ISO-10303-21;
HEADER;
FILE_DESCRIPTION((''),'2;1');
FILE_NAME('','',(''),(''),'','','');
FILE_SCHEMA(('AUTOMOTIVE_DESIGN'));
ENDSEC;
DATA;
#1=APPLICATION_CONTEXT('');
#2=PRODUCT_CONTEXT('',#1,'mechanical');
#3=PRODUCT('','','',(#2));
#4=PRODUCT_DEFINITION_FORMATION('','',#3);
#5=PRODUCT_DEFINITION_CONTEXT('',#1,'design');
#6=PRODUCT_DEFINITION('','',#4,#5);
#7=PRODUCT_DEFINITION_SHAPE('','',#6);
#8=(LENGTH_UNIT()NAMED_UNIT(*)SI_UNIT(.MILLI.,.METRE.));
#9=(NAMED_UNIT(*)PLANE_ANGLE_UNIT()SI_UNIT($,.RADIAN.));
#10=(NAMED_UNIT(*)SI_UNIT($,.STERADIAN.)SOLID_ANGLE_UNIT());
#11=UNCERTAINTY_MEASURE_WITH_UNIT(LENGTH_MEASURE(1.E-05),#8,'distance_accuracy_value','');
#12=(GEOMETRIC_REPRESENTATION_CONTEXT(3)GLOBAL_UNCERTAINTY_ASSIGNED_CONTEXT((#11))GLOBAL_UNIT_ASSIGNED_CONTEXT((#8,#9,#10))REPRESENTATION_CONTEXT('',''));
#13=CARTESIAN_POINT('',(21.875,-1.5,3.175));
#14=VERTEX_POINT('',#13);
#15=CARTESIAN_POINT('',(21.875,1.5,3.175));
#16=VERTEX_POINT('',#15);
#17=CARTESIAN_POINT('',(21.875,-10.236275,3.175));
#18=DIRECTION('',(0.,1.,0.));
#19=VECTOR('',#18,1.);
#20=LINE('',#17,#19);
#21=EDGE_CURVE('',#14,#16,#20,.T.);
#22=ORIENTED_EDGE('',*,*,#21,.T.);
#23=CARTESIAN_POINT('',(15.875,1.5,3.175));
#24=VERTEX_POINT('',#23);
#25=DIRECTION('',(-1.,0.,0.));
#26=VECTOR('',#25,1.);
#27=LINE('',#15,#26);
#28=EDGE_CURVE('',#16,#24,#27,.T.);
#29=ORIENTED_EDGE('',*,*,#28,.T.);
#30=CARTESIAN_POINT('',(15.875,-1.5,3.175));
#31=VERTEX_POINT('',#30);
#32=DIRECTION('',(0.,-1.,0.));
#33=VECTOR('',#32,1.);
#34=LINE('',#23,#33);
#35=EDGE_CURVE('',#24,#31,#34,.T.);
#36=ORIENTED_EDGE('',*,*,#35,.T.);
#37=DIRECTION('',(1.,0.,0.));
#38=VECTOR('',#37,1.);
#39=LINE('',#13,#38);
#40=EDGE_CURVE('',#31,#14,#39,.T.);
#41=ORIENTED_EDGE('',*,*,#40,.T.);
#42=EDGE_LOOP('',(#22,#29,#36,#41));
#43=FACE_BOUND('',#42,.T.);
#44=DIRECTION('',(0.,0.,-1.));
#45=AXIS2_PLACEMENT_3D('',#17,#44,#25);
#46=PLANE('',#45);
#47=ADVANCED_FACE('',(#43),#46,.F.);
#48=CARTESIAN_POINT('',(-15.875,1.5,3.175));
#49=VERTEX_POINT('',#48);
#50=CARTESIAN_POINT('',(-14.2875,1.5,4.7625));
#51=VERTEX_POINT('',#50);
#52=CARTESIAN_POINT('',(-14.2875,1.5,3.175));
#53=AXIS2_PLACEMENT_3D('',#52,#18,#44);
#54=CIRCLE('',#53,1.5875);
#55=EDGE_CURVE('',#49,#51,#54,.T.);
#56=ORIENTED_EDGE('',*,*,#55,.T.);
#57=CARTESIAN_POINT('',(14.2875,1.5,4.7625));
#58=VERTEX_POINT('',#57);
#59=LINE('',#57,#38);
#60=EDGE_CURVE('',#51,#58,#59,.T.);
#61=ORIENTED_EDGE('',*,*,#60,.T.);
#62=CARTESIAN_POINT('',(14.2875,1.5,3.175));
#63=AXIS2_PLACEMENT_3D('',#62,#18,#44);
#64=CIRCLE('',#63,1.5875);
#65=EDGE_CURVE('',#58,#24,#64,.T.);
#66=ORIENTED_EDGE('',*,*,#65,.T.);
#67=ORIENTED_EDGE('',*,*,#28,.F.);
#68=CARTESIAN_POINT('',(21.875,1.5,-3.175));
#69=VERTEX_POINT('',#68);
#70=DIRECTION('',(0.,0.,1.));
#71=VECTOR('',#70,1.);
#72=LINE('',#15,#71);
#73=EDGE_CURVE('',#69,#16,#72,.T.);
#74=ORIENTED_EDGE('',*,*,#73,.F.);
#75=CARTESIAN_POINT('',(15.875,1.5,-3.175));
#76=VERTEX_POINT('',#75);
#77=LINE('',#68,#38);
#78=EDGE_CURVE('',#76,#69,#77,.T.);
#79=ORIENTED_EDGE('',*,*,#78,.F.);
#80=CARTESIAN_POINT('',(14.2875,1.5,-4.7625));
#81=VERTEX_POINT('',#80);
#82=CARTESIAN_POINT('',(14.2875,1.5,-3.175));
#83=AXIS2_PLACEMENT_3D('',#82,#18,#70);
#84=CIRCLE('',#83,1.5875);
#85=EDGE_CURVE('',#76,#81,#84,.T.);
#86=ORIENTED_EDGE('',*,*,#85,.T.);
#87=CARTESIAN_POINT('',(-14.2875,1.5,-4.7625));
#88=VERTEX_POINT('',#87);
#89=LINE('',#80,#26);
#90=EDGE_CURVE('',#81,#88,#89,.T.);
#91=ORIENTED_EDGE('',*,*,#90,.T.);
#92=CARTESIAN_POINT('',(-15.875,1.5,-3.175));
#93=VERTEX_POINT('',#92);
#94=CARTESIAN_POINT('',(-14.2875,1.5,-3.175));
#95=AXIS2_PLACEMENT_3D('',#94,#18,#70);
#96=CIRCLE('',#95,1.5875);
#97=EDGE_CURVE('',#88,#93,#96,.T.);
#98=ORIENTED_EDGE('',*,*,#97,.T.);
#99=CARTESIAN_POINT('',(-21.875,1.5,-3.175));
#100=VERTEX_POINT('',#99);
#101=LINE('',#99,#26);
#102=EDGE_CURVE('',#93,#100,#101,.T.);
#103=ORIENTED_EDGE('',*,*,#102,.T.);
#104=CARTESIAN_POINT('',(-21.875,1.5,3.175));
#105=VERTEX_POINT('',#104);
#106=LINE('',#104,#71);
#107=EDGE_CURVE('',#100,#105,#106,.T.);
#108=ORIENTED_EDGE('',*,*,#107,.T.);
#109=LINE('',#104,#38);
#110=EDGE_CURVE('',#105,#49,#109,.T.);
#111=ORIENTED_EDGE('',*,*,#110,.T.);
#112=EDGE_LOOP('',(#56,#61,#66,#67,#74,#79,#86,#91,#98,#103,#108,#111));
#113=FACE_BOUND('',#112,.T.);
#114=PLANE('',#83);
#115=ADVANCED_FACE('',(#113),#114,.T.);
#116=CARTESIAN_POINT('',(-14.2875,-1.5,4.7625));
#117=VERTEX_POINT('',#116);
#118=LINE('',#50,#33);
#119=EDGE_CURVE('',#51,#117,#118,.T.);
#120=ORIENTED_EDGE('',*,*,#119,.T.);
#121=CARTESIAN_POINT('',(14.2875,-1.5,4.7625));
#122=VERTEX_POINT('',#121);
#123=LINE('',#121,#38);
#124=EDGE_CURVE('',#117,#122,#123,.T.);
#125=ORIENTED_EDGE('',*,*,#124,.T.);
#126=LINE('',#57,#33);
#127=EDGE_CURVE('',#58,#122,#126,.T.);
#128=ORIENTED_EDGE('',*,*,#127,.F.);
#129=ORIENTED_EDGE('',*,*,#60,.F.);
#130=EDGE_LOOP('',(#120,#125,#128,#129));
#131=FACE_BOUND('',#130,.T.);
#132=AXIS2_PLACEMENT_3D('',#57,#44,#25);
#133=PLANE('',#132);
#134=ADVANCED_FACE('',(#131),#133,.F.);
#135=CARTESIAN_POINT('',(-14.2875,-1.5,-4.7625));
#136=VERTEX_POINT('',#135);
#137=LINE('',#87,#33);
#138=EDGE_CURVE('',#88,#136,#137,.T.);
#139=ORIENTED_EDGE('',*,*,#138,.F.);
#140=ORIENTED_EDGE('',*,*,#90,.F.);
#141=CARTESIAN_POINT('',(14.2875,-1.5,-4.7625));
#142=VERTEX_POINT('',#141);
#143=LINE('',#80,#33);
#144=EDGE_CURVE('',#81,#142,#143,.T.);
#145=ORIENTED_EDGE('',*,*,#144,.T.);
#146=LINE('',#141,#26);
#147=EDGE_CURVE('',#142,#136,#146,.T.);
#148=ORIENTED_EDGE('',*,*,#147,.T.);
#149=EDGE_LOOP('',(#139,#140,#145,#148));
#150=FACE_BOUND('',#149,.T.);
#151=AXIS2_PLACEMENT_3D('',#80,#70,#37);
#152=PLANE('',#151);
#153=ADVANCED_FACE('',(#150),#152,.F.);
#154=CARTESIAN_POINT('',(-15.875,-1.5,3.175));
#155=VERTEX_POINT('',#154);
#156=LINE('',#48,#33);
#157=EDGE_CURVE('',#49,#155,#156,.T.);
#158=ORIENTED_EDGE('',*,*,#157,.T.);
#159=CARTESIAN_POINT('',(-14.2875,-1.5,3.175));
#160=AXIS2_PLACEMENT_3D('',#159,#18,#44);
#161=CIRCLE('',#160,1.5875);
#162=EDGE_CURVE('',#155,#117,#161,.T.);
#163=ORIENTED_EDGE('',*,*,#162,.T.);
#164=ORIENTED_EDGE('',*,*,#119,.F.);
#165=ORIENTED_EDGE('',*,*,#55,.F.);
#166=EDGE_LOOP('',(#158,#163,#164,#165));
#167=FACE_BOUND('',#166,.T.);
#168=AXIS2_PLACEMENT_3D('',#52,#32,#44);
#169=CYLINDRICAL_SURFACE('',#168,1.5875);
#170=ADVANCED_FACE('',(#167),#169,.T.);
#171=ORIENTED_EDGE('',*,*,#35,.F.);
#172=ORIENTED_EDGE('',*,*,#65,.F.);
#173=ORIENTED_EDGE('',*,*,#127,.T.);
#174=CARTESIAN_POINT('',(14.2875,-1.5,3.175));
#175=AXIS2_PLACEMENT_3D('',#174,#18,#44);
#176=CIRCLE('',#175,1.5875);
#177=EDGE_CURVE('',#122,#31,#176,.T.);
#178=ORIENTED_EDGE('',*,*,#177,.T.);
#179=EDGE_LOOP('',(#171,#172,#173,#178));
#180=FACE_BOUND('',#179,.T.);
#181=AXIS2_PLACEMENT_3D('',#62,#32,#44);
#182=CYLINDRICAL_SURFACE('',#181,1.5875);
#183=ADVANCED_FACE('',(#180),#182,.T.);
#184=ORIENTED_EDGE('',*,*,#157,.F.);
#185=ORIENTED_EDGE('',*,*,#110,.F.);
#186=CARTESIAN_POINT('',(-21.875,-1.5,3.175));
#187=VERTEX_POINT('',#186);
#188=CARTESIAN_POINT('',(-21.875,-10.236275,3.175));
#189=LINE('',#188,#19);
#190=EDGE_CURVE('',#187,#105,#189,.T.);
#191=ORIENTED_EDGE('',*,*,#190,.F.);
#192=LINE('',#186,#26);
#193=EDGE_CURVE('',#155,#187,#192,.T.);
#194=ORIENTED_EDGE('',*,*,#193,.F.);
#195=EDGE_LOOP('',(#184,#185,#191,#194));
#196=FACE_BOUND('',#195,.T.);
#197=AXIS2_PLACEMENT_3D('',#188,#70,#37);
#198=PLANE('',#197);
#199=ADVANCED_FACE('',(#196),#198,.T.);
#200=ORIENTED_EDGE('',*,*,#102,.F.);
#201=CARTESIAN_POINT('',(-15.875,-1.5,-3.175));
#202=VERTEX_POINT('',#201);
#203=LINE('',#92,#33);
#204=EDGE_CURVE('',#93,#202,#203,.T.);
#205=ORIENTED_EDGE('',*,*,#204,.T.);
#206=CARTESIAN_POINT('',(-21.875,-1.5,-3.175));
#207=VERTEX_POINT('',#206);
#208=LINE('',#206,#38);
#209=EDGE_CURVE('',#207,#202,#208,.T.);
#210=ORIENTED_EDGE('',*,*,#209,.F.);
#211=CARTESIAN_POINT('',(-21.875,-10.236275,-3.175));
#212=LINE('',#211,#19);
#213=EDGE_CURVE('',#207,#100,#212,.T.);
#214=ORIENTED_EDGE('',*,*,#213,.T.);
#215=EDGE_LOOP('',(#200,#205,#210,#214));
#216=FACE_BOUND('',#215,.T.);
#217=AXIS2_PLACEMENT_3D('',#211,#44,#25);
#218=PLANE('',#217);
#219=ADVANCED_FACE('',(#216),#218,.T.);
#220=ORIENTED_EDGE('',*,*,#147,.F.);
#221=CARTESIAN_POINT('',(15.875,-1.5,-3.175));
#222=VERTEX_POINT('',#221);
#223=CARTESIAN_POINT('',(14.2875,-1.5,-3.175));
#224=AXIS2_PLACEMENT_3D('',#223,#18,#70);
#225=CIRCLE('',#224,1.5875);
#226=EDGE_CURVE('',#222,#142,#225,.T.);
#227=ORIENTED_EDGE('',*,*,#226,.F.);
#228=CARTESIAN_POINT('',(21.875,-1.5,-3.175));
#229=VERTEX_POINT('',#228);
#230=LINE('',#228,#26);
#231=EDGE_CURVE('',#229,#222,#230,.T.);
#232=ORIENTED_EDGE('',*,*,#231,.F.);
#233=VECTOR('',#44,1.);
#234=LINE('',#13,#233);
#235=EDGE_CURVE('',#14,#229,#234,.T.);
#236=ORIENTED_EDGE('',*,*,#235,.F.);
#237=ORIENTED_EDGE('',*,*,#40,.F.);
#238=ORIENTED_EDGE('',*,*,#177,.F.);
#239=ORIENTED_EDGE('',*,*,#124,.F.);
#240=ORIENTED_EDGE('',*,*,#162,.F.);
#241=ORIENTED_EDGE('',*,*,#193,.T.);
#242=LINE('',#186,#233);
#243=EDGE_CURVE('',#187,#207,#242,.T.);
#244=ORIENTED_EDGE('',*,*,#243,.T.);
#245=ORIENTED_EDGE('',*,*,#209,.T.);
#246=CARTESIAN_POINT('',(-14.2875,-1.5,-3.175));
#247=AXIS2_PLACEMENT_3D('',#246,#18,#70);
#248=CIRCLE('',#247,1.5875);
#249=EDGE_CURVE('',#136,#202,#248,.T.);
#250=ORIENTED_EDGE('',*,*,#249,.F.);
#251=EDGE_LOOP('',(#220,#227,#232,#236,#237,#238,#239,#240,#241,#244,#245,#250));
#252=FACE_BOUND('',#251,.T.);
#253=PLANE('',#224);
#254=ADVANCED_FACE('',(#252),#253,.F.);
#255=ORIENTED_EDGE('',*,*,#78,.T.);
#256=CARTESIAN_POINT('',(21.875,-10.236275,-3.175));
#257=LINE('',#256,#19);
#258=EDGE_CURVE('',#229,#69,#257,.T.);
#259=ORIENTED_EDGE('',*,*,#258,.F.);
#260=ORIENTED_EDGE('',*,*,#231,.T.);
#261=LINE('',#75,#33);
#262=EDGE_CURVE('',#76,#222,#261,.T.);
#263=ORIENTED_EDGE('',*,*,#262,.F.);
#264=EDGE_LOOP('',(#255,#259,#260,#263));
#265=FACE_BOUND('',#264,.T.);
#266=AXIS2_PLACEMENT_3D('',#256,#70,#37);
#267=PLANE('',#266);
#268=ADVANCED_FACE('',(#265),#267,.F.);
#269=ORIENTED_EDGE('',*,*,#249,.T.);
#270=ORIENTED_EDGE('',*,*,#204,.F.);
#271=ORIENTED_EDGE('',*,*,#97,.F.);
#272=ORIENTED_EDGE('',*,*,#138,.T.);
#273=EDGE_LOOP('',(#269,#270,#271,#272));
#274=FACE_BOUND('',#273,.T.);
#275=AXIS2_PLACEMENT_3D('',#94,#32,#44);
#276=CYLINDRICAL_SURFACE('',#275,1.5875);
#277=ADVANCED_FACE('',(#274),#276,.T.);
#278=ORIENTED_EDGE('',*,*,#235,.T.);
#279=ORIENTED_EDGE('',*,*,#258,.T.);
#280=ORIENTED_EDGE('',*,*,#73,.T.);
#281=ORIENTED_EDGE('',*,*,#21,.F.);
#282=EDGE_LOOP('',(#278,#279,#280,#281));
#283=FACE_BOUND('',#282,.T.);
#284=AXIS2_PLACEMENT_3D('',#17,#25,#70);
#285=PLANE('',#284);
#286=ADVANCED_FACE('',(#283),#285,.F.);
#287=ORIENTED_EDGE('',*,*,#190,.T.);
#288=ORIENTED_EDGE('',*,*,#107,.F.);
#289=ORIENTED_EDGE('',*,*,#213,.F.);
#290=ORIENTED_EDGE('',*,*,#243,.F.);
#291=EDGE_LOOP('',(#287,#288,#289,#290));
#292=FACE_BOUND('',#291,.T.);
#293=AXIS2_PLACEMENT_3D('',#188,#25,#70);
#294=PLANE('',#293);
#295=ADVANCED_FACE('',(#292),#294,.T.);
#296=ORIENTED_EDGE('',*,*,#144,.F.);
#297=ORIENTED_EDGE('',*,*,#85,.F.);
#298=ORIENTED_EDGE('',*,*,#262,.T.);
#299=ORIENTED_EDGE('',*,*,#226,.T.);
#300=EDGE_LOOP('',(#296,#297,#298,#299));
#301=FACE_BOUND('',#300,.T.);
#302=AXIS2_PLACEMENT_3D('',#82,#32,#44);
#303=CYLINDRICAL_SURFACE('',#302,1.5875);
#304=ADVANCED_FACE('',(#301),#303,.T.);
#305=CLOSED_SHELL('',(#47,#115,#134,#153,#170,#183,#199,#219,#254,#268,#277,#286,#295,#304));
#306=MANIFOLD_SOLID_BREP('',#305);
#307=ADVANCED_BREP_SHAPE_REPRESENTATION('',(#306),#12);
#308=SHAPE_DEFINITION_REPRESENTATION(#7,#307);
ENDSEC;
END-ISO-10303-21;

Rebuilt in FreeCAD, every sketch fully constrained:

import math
import FreeCAD as App
import Part
import Sketcher

V = App.Vector
Q = App.Units.Quantity


def add_polygon(sketch, points):
    """Adds a closed chain of lines whose ends are joined by coincident constraints."""
    first, n = sketch.GeometryCount, len(points)
    for a, b in zip(points, points[1:] + points[:1]):
        sketch.addGeometry(Part.LineSegment(App.Vector(*a, 0), App.Vector(*b, 0)), False)
    for i in range(n):
        sketch.addConstraint(Sketcher.Constraint("Coincident", first + i, 2, first + (i + 1) % n, 1))

doc = App.newDocument("Part")
body = doc.addObject("PartDesign::Body", "Body")

# Sketch on XZ plane
sketch1 = body.newObject("Sketcher::SketchObject", "Sketch")
sketch1.AttachmentSupport = (doc.getObject("XZ_Plane"), [""])
sketch1.MapMode = "FlatFace"
sketch1.addGeometry([
    Part.LineSegment(V(-14.3, 4.8, 0), V(14.3, 4.8, 0)),  # 0
    Part.ArcOfCircle(Part.Circle(V(14.3, 3.2, 0), V(0, 0, 1), 1.6), math.radians(0), math.radians(90)),  # 1
    Part.LineSegment(V(15.9, 3.2, 0), V(15.9, -3.2, 0)),  # 2
    Part.ArcOfCircle(Part.Circle(V(14.3, -3.2, 0), V(0, 0, 1), 1.6), math.radians(-90), math.radians(0)),  # 3
    Part.LineSegment(V(14.3, -4.8, 0), V(-14.3, -4.8, 0)),  # 4
    Part.ArcOfCircle(Part.Circle(V(-14.3, -3.2, 0), V(0, 0, 1), 1.6), math.radians(180), math.radians(270)),  # 5
    Part.LineSegment(V(-15.9, -3.2, 0), V(-15.9, 3.2, 0)),  # 6
    Part.ArcOfCircle(Part.Circle(V(-14.3, 3.2, 0), V(0, 0, 1), 1.6), math.radians(90), math.radians(180)),  # 7
], False)
sketch1.addConstraint([
    Sketcher.Constraint("Tangent", 0, 2, 1, 2),
    Sketcher.Constraint("Tangent", 1, 1, 2, 1),
    Sketcher.Constraint("Tangent", 2, 2, 3, 2),
    Sketcher.Constraint("Tangent", 3, 1, 4, 1),
    Sketcher.Constraint("Tangent", 4, 2, 5, 2),
    Sketcher.Constraint("Tangent", 5, 1, 6, 1),
    Sketcher.Constraint("Tangent", 6, 2, 7, 2),
    Sketcher.Constraint("Tangent", 7, 1, 0, 1),
    Sketcher.Constraint("Horizontal", 0),
    Sketcher.Constraint("Vertical", 2),
    Sketcher.Constraint("Horizontal", 4),
    Sketcher.Constraint("Vertical", 6),
    Sketcher.Constraint("Equal", 1, 3),
    Sketcher.Constraint("Equal", 3, 5),
    Sketcher.Constraint("Equal", 5, 7),
    Sketcher.Constraint("Symmetric", 1, 3, 5, 3, -1, 1),
    Sketcher.Constraint("DistanceY", 2, 2, 2, 1, Q("6.35 mm")),
    Sketcher.Constraint("Radius", 1, Q("1.5875 mm")),
    Sketcher.Constraint("DistanceX", 0, 1, 0, 2, Q("28.575 mm")),
])
pad1 = body.newObject("PartDesign::Pad", "Pad")
pad1.Profile = sketch1
pad1.Length = 3
pad1.Midplane = True

# Sketch on XZ plane
sketch2 = body.newObject("Sketcher::SketchObject", "Sketch001")
sketch2.AttachmentSupport = (doc.getObject("XZ_Plane"), [""])
sketch2.MapMode = "FlatFace"
sketch2.AttachmentOffset = App.Placement(V(0, 0, -1.5), App.Rotation())
add_polygon(sketch2, [(-22, -3), (-22, 3), (-16, 3), (-16, -3)])  # lines 0-3
sketch2.addConstraint([
    Sketcher.Constraint("Vertical", 0),
    Sketcher.Constraint("Horizontal", 1),
    Sketcher.Constraint("Vertical", 2),
    Sketcher.Constraint("Horizontal", 3),
    Sketcher.Constraint("DistanceX", 1, 1, 1, 2, Q("6 mm")),
    Sketcher.Constraint("DistanceY", 0, 1, 0, 2, Q("6.35 mm")),
    Sketcher.Constraint("DistanceX", 0, 2, -1, 1, Q("21.875 mm")),
    Sketcher.Constraint("DistanceY", -1, 1, 0, 2, Q("3.175 mm")),
])
pad2 = body.newObject("PartDesign::Pad", "Pad001")
pad2.Profile = sketch2
pad2.Length = 3
doc.recompute()

mirrored = body.newObject("PartDesign::Mirrored", "Mirrored")
mirrored.Originals = [pad2]
mirrored.MirrorPlane = (doc.getObject("YZ_Plane"), [""])
body.Tip = mirrored

doc.recompute()
